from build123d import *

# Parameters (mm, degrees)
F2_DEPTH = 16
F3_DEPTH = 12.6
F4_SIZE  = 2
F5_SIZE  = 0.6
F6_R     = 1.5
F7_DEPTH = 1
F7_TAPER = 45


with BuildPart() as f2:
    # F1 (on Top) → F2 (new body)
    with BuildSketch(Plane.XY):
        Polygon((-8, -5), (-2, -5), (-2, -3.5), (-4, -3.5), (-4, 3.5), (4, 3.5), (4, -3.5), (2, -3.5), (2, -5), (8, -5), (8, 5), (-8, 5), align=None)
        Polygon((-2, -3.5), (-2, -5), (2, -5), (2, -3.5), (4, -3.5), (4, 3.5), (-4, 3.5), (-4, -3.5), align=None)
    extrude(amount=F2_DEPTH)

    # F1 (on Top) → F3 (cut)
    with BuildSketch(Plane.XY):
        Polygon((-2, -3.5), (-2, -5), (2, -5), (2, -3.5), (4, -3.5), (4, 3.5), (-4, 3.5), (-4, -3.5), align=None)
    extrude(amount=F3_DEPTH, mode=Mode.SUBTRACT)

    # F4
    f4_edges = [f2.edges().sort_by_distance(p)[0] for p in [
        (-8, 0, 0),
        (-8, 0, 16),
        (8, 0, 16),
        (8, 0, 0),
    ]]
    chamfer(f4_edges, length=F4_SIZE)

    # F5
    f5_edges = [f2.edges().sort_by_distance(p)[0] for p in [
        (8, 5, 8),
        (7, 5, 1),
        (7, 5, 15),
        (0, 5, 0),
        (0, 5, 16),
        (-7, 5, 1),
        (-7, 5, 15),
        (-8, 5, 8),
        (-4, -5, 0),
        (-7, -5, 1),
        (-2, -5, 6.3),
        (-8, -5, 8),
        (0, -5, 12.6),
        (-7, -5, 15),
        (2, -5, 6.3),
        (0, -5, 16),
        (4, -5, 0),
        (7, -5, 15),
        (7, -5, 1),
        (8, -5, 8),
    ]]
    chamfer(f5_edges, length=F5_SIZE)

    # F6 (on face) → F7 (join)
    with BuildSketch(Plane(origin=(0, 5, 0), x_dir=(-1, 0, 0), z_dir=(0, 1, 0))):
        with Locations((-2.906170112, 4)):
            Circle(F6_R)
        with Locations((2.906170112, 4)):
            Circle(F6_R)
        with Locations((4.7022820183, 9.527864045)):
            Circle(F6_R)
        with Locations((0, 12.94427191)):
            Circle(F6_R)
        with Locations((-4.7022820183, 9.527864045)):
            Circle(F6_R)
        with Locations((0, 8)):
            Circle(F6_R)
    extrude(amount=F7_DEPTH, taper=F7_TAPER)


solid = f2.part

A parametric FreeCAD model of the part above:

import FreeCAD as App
import Part
import Sketcher

V = App.Vector
Q = App.Units.Quantity


def edges_at(feature, points):
    """Names of the edges that pass closest to the given points."""
    edges = feature.Shape.Edges
    near = lambda p: min(range(len(edges)), key=lambda i: edges[i].distToShape(Part.Vertex(*p))[0])
    return sorted({f"Edge{near(p) + 1}" for p in points})


def add_polygon(sketch, points):
    """Adds a closed chain of lines whose ends are joined by coincident constraints."""
    first, n = sketch.GeometryCount, len(points)
    for a, b in zip(points, points[1:] + points[:1]):
        sketch.addGeometry(Part.LineSegment(App.Vector(*a, 0), App.Vector(*b, 0)), False)
    for i in range(n):
        sketch.addConstraint(Sketcher.Constraint("Coincident", first + i, 2, first + (i + 1) % n, 1))

doc = App.newDocument("Part")
body = doc.addObject("PartDesign::Body", "Body")

# Sketch on XY plane
sketch1 = body.newObject("Sketcher::SketchObject", "Sketch")
sketch1.AttachmentSupport = (doc.getObject("XY_Plane"), [""])
sketch1.MapMode = "FlatFace"
add_polygon(sketch1, [(-8, -5), (8, -5), (8, 5), (-8, 5)])  # lines 0-3
sketch1.addConstraint(Sketcher.Constraint("Horizontal", 0))
sketch1.addConstraint(Sketcher.Constraint("Vertical", 1))
sketch1.addConstraint(Sketcher.Constraint("Horizontal", 2))
sketch1.addConstraint(Sketcher.Constraint("Vertical", 3))
sketch1.addConstraint(Sketcher.Constraint("Symmetric", 0, 2, 2, 2, -1, 1))
sketch1.addConstraint(Sketcher.Constraint("DistanceX", 0, 1, 0, 2, Q("16 mm")))
sketch1.addConstraint(Sketcher.Constraint("DistanceY", 1, 1, 1, 2, Q("10 mm")))
pad1 = body.newObject("PartDesign::Pad", "Pad")
pad1.Profile = sketch1
pad1.Length = 16

# Sketch on XY plane
sketch2 = body.newObject("Sketcher::SketchObject", "Sketch001")
sketch2.AttachmentSupport = (doc.getObject("XY_Plane"), [""])
sketch2.MapMode = "FlatFace"
add_polygon(sketch2, [(-2, -3.5), (-2, -5), (2, -5), (2, -3.5), (4, -3.5), (4, 3.5), (-4, 3.5), (-4, -3.5)])  # lines 0-7
sketch2.addConstraint(Sketcher.Constraint("Vertical", 0))
sketch2.addConstraint(Sketcher.Constraint("Horizontal", 1))
sketch2.addConstraint(Sketcher.Constraint("Vertical", 2))
sketch2.addConstraint(Sketcher.Constraint("Horizontal", 3))
sketch2.addConstraint(Sketcher.Constraint("Vertical", 4))
sketch2.addConstraint(Sketcher.Constraint("Horizontal", 5))
sketch2.addConstraint(Sketcher.Constraint("Vertical", 6))
sketch2.addConstraint(Sketcher.Constraint("Horizontal", 7))
sketch2.addConstraint(Sketcher.Constraint("Symmetric", 3, 2, 5, 2, -1, 1))
sketch2.addConstraint(Sketcher.Constraint("Symmetric", 2, 2, 7, 2, -2))
sketch2.addConstraint(Sketcher.Constraint("DistanceX", 1, 1, 1, 2, Q("4 mm")))
sketch2.addConstraint(Sketcher.Constraint("DistanceX", 3, 1, 3, 2, Q("2 mm")))
sketch2.addConstraint(Sketcher.Constraint("DistanceY", 4, 1, 4, 2, Q("7 mm")))
sketch2.addConstraint(Sketcher.Constraint("DistanceY", 0, 2, 0, 1, Q("1.5 mm")))
pocket1 = body.newObject("PartDesign::Pocket", "Pocket")
pocket1.Profile = sketch2
pocket1.Length = 12.6
pocket1.Reversed = True
doc.recompute()

chamfer = body.newObject("PartDesign::Chamfer", "Chamfer")
chamfer.Base = (pocket1, edges_at(pocket1, [
    (-8, 0, 0),
    (-8, 0, 16),
    (8, 0, 16),
    (8, 0, 0),
]))
chamfer.Size = 2
doc.recompute()

chamfer2 = body.newObject("PartDesign::Chamfer", "Chamfer001")
chamfer2.Base = (chamfer, edges_at(chamfer, [
    (8, 5, 8),
    (7, 5, 1),
    (7, 5, 15),
    (0, 5, 0),
    (0, 5, 16),
    (-7, 5, 1),
    (-7, 5, 15),
    (-8, 5, 8),
    (-4, -5, 0),
    (-7, -5, 1),
    (-2, -5, 6.3),
    (-8, -5, 8),
    (0, -5, 12.6),
    (-7, -5, 15),
    (2, -5, 6.3),
    (0, -5, 16),
    (4, -5, 0),
    (7, -5, 15),
    (7, -5, 1),
    (8, -5, 8),
]))
chamfer2.Size = 0.6

# Sketch on XZ plane
sketch3 = body.newObject("Sketcher::SketchObject", "Sketch002")
sketch3.AttachmentSupport = (doc.getObject("XZ_Plane"), [""])
sketch3.MapMode = "FlatFace"
sketch3.AttachmentOffset = App.Placement(V(0, 0, -5), App.Rotation())
sketch3.addGeometry(Part.Circle(V(2.9, 4, 0), V(0, 0, 1), 1.5), False)
sketch3.addGeometry(Part.Circle(V(-2.9, 4, 0), V(0, 0, 1), 1.5), False)
sketch3.addGeometry(Part.Circle(V(-4.7, 9.5, 0), V(0, 0, 1), 1.5), False)
sketch3.addGeometry(Part.Circle(V(0, 12.9, 0), V(0, 0, 1), 1.5), False)
sketch3.addGeometry(Part.Circle(V(4.7, 9.5, 0), V(0, 0, 1), 1.5), False)
sketch3.addGeometry(Part.Circle(V(0, 8, 0), V(0, 0, 1), 1.5), False)
sketch3.addConstraint(Sketcher.Constraint("Equal", 0, 1))
sketch3.addConstraint(Sketcher.Constraint("Equal", 1, 2))
sketch3.addConstraint(Sketcher.Constraint("Equal", 2, 3))
sketch3.addConstraint(Sketcher.Constraint("Equal", 3, 4))
sketch3.addConstraint(Sketcher.Constraint("Equal", 4, 5))
sketch3.addConstraint(Sketcher.Constraint("Symmetric", 0, 3, 1, 3, -2))
sketch3.addConstraint(Sketcher.Constraint("Symmetric", 2, 3, 4, 3, -2))
sketch3.addConstraint(Sketcher.Constraint("PointOnObject", 3, 3, -2))
sketch3.addConstraint(Sketcher.Constraint("PointOnObject", 5, 3, -2))
sketch3.addConstraint(Sketcher.Constraint("Diameter", 0, Q("3 mm")))
sketch3.addConstraint(Sketcher.Constraint("DistanceY", -1, 1, 0, 3, Q("4 mm")))
sketch3.addConstraint(Sketcher.Constraint("DistanceY", -1, 1, 5, 3, Q("8 mm")))
sketch3.addConstraint(Sketcher.Constraint("DistanceX", -1, 1, 0, 3, Q("2.90617 mm")))
sketch3.addConstraint(Sketcher.Constraint("DistanceY", -1, 1, 3, 3, Q("12.944272 mm")))
sketch3.addConstraint(Sketcher.Constraint("DistanceX", 2, 3, 1, 3, Q("1.796112 mm")))
sketch3.addConstraint(Sketcher.Constraint("DistanceY", -1, 1, 2, 3, Q("9.527864 mm")))
pad2 = body.newObject("PartDesign::Pad", "Pad001")
pad2.Profile = sketch3
pad2.Length = 1
pad2.Reversed = True
pad2.TaperAngle = -45

doc.recompute()
